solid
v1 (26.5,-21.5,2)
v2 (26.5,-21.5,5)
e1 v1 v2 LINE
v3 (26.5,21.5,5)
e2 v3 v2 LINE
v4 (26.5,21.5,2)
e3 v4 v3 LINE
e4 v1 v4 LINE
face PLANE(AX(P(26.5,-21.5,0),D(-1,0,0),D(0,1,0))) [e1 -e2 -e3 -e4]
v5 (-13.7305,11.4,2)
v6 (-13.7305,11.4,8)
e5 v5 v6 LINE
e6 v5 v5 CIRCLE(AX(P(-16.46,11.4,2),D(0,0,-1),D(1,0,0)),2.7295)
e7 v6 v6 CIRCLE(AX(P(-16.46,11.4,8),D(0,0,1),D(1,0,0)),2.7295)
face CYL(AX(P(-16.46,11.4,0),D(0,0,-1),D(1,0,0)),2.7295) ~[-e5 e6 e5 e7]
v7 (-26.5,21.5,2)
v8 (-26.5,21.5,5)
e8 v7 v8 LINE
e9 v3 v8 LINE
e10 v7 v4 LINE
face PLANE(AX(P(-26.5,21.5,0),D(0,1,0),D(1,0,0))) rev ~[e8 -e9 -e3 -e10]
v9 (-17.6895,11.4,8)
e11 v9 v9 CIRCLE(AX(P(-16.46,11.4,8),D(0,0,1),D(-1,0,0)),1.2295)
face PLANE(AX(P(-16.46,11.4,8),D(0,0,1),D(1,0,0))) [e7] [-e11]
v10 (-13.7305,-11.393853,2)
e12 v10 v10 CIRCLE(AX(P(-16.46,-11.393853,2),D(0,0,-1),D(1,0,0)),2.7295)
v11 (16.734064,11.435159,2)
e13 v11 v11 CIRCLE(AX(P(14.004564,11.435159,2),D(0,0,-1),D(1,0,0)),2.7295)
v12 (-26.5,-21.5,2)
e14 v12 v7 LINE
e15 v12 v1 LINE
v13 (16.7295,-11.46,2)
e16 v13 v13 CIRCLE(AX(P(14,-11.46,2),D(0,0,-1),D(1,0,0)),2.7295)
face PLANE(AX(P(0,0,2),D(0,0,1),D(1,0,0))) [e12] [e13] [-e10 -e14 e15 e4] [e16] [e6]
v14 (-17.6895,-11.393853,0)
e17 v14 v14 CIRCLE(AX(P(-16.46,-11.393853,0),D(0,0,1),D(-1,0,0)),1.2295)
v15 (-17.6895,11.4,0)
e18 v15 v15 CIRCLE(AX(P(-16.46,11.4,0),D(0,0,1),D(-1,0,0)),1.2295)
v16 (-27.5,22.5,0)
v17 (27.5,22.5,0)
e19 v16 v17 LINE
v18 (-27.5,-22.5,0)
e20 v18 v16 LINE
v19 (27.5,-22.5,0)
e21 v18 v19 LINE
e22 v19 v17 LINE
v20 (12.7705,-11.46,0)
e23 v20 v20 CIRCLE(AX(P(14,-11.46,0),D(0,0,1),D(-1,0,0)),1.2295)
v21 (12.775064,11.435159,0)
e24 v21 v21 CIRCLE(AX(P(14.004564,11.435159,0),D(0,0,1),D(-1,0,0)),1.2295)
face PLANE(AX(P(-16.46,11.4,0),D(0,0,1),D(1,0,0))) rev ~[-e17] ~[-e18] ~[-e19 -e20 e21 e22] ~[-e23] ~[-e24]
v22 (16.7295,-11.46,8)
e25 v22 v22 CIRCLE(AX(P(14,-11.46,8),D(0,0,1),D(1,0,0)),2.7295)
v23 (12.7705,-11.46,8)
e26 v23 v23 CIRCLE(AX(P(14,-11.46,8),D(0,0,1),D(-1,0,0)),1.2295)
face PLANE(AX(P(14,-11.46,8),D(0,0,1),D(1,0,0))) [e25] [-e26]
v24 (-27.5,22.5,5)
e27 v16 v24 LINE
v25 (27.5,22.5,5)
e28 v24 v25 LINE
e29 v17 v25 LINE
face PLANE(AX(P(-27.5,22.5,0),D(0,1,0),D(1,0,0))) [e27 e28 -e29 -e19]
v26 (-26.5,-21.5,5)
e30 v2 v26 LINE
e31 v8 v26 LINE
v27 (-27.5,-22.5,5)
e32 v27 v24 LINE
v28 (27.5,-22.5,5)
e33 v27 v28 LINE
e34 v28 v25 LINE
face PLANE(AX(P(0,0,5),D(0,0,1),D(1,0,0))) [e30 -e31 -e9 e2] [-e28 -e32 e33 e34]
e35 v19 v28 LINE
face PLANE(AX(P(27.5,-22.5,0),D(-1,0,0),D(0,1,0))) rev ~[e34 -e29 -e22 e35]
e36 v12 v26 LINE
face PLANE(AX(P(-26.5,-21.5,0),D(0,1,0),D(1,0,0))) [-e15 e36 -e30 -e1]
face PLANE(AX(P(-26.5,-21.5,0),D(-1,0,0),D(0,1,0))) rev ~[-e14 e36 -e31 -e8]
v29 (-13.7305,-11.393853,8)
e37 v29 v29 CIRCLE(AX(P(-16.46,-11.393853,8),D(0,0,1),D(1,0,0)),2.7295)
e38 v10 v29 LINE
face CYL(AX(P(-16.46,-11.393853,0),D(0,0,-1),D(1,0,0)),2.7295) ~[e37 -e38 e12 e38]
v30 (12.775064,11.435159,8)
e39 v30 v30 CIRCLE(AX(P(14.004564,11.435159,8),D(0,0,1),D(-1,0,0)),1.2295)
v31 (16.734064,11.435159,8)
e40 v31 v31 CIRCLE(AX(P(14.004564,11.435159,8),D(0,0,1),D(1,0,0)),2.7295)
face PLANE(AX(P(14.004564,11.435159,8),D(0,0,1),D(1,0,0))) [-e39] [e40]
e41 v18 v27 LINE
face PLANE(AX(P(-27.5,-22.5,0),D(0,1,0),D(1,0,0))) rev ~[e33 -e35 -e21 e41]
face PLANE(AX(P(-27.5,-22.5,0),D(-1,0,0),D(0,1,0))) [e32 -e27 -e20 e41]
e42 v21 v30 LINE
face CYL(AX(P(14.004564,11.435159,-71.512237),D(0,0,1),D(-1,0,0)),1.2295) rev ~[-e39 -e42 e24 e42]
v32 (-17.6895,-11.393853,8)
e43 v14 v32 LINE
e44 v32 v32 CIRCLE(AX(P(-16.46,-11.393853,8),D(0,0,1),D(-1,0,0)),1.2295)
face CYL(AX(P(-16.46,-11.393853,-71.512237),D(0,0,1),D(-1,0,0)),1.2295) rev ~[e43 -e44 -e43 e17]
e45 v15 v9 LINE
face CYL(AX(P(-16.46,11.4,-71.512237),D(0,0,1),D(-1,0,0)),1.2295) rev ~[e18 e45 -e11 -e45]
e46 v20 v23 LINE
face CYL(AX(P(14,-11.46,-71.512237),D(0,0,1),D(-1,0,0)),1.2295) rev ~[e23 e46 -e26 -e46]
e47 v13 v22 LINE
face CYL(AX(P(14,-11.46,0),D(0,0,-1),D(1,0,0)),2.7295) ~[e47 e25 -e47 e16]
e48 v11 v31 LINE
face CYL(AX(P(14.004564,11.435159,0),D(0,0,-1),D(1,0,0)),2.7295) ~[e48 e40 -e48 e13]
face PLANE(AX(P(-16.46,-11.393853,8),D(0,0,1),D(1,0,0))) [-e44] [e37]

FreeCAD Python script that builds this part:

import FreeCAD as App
import Part
import Sketcher


def add_polygon(sketch, points):
    """Adds a closed chain of lines whose ends are joined by coincident constraints."""
    first, n = sketch.GeometryCount, len(points)
    for a, b in zip(points, points[1:] + points[:1]):
        sketch.addGeometry(Part.LineSegment(App.Vector(*a, 0), App.Vector(*b, 0)), False)
    for i in range(n):
        sketch.addConstraint(Sketcher.Constraint("Coincident", first + i, 2, first + (i + 1) % n, 1))

doc = App.newDocument("Part")
body = doc.addObject("PartDesign::Body", "Body")

# Sketch on XY plane
sketch1 = body.newObject("Sketcher::SketchObject", "Sketch")
sketch1.AttachmentSupport = (doc.getObject("XY_Plane"), [""])
sketch1.MapMode = "FlatFace"
add_polygon(sketch1, [(-27.5, 22.5), (-27.5, -22.5), (27.5, -22.5), (27.5, 22.5)])  # lines 0-3
sketch1.addConstraint([
    Sketcher.Constraint("Vertical", 0),
    Sketcher.Constraint("Horizontal", 1),
    Sketcher.Constraint("Vertical", 2),
    Sketcher.Constraint("Horizontal", 3),
    Sketcher.Constraint("Symmetric", 0, 2, 2, 2, -1, 1),
    Sketcher.Constraint("DistanceX", 1, 1, 1, 2, 55.0),
    Sketcher.Constraint("DistanceY", 0, 2, 0, 1, 45.0),
])
pad1 = body.newObject("PartDesign::Pad", "Pad")
pad1.Profile = sketch1
pad1.Length = 5

# Sketch on XY plane
sketch2 = body.newObject("Sketcher::SketchObject", "Sketch001")
sketch2.AttachmentSupport = (doc.getObject("XY_Plane"), [""])
sketch2.MapMode = "FlatFace"
add_polygon(sketch2, [(-26.5, 21.5), (-26.5, -21.5), (26.5, -21.5), (26.5, 21.5)])  # lines 0-3
sketch2.addConstraint([
    Sketcher.Constraint("Vertical", 0),
    Sketcher.Constraint("Horizontal", 1),
    Sketcher.Constraint("Vertical", 2),
    Sketcher.Constraint("Horizontal", 3),
    Sketcher.Constraint("Symmetric", 0, 2, 2, 2, -1, 1),
    Sketcher.Constraint("DistanceX", 1, 1, 1, 2, 53.0),
    Sketcher.Constraint("DistanceY", 0, 2, 0, 1, 43.0),
])
pocket1 = body.newObject("PartDesign::Pocket", "Pocket")
pocket1.Profile = sketch2
pocket1.Length = 10
pocket1.Reversed = True

# Sketch on XY plane
sketch3 = body.newObject("Sketcher::SketchObject", "Sketch002")
sketch3.AttachmentSupport = (doc.getObject("XY_Plane"), [""])
sketch3.MapMode = "FlatFace"
add_polygon(sketch3, [(-26.5, 21.5), (-26.5, -21.5), (26.5, -21.5), (26.5, 21.5)])  # lines 0-3
sketch3.addConstraint([
    Sketcher.Constraint("Vertical", 0),
    Sketcher.Constraint("Horizontal", 1),
    Sketcher.Constraint("Vertical", 2),
    Sketcher.Constraint("Horizontal", 3),
    Sketcher.Constraint("Symmetric", 0, 2, 2, 2, -1, 1),
    Sketcher.Constraint("DistanceX", 1, 1, 1, 2, 53.0),
    Sketcher.Constraint("DistanceY", 0, 2, 0, 1, 43.0),
])
pad2 = body.newObject("PartDesign::Pad", "Pad001")
pad2.Profile = sketch3
pad2.Length = 2

# Sketch on XY plane
sketch4 = body.newObject("Sketcher::SketchObject", "Sketch003")
sketch4.AttachmentSupport = (doc.getObject("XY_Plane"), [""])
sketch4.MapMode = "FlatFace"
sketch4.addGeometry([
    Part.Circle(App.Vector(-16.46, 11.4, 0), App.Vector(0, 0, 1), 2.7295),
    Part.Circle(App.Vector(14, -11.46, 0), App.Vector(0, 0, 1), 2.7295),
    Part.Circle(App.Vector(14.004564, 11.435159, 0), App.Vector(0, 0, 1), 2.7295),
    Part.Circle(App.Vector(-16.46, -11.393853, 0), App.Vector(0, 0, 1), 2.7295),
], False)
sketch4.addConstraint([
    Sketcher.Constraint("Equal", 0, 1),
    Sketcher.Constraint("Equal", 1, 2),
    Sketcher.Constraint("Equal", 2, 3),
    Sketcher.Constraint("Vertical", 0, 3, 3, 3),
    Sketcher.Constraint("Diameter", 0, 5.459),
    Sketcher.Constraint("DistanceX", -1, 1, 1, 3, 14.0),
    Sketcher.Constraint("DistanceY", -1, 1, 0, 3, 11.4),
    Sketcher.Constraint("DistanceX", 0, 3, -1, 1, 16.46),
    Sketcher.Constraint("DistanceY", 1, 3, -1, 1, 11.46),
    Sketcher.Constraint("DistanceY", -1, 1, 2, 3, 11.435159),
    Sketcher.Constraint("DistanceY", 3, 3, 2, 3, 22.829011),
    Sketcher.Constraint("DistanceX", -1, 1, 2, 3, 14.004564),
])
pad3 = body.newObject("PartDesign::Pad", "Pad002")
pad3.Profile = sketch4
pad3.Length = 8

# Sketch on XY plane
sketch5 = body.newObject("Sketcher::SketchObject", "Sketch004")
sketch5.AttachmentSupport = (doc.getObject("XY_Plane"), [""])
sketch5.MapMode = "FlatFace"
sketch5.addGeometry([
    Part.Circle(App.Vector(-16.46, 11.4, 0), App.Vector(0, 0, 1), 1.2295),
    Part.Circle(App.Vector(14, -11.46, 0), App.Vector(0, 0, 1), 1.2295),
    Part.Circle(App.Vector(14.004564, 11.435159, 0), App.Vector(0, 0, 1), 1.2295),
    Part.Circle(App.Vector(-16.46, -11.393853, 0), App.Vector(0, 0, 1), 1.2295),
], False)
sketch5.addConstraint([
    Sketcher.Constraint("Equal", 0, 1),
    Sketcher.Constraint("Equal", 1, 2),
    Sketcher.Constraint("Equal", 2, 3),
    Sketcher.Constraint("Vertical", 0, 3, 3, 3),
    Sketcher.Constraint("Diameter", 0, 2.459),
    Sketcher.Constraint("DistanceX", -1, 1, 1, 3, 14.0),
    Sketcher.Constraint("DistanceY", -1, 1, 0, 3, 11.4),
    Sketcher.Constraint("DistanceX", 0, 3, -1, 1, 16.46),
    Sketcher.Constraint("DistanceY", 1, 3, -1, 1, 11.46),
    Sketcher.Constraint("DistanceY", -1, 1, 2, 3, 11.435159),
    Sketcher.Constraint("DistanceY", 3, 3, 2, 3, 22.829011),
    Sketcher.Constraint("DistanceX", -1, 1, 2, 3, 14.004564),
])
doc.recompute()
hole = body.newObject("PartDesign::Hole", "Hole")
hole.Profile = sketch5
hole.ThreadType = "None"
hole.Diameter = 2.459
hole.DepthType = "ThroughAll"
hole.Reversed = True

doc.recompute()
